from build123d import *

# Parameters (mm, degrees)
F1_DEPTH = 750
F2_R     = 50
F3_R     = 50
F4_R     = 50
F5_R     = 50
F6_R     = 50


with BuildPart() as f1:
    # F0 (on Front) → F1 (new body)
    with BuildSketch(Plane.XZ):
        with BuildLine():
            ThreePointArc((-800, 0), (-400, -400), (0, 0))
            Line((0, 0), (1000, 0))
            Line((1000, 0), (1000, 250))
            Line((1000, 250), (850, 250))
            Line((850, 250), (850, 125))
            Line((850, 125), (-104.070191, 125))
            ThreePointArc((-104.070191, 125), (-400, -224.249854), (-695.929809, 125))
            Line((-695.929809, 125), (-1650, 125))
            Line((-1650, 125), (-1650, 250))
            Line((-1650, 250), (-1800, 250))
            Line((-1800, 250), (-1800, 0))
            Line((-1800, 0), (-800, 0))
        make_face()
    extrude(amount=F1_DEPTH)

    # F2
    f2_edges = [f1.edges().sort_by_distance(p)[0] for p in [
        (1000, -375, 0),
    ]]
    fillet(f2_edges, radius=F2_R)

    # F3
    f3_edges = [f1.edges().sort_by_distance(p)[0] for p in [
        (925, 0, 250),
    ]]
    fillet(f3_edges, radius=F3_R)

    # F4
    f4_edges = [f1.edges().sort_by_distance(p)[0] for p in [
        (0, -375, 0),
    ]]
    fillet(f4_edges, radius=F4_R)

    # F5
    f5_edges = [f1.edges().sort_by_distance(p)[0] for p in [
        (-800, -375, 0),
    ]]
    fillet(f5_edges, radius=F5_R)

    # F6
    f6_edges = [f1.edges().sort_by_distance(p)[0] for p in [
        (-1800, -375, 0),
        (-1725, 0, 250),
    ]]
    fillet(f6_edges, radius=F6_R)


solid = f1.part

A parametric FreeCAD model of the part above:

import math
import FreeCAD as App
import Part
import Sketcher
Q = App.Units.Quantity


def edges_at(feature, points):
    """Names of the edges that pass closest to the given points."""
    edges = feature.Shape.Edges
    near = lambda p: min(range(len(edges)), key=lambda i: edges[i].distToShape(Part.Vertex(*p))[0])
    return sorted({f"Edge{near(p) + 1}" for p in points})

doc = App.newDocument("Part")
params = doc.addObject("Spreadsheet::Sheet", "Params")
for row, (alias, value) in enumerate([
    ("sketch1_radius", "400 mm"),
    ("sketch1_radius2", "300 mm"),
    ("sketch1_width", "1000 mm"),
    ("sketch1_width2", "150 mm"),
    ("sketch1_height", "250 mm"),
    ("pad1_length", "750 mm"),
    ("fillet_radius", "50 mm"),
    ("fillet2_radius", "50 mm"),
    ("fillet3_radius", "50 mm"),
    ("fillet4_radius", "50 mm"),
    ("fillet5_radius", "50 mm"),
], start=1):
    params.set(f"A{row}", alias)
    params.set(f"B{row}", "=" + value)
    params.setAlias(f"B{row}", alias)

body = doc.addObject("PartDesign::Body", "Body")

sketch1 = doc.addObject("Sketcher::SketchObject", "Sketch")
body.addObject(sketch1)
sketch1.AttachmentSupport = (doc.XZ_Plane, [""])
sketch1.MapMode = "FlatFace"
sketch1.addGeometry([
    Part.ArcOfCircle(Part.Circle(App.Vector(-400, 0, 0), App.Vector(0, 0, 1), 400), math.radians(180), math.radians(360)),
    Part.LineSegment(App.Vector(0, 0, 0), App.Vector(1000, 0, 0)),
    Part.LineSegment(App.Vector(1000, 0, 0), App.Vector(1000, 250, 0)),
    Part.LineSegment(App.Vector(1000, 250, 0), App.Vector(850, 250, 0)),
    Part.LineSegment(App.Vector(850, 250, 0), App.Vector(850, 125, 0)),
    Part.LineSegment(App.Vector(850, 125, 0), App.Vector(-104, 125, 0)),
    Part.ArcOfCircle(Part.Circle(App.Vector(-400, 76, 0), App.Vector(0, 0, 1), 300), math.radians(171), math.radians(369)),
    Part.LineSegment(App.Vector(-696, 125, 0), App.Vector(-1650, 125, 0)),
    Part.LineSegment(App.Vector(-1650, 125, 0), App.Vector(-1650, 250, 0)),
    Part.LineSegment(App.Vector(-1650, 250, 0), App.Vector(-1800, 250, 0)),
    Part.LineSegment(App.Vector(-1800, 250, 0), App.Vector(-1800, 0, 0)),
    Part.LineSegment(App.Vector(-1800, 0, 0), App.Vector(-800, 0, 0)),
], False)
sketch1.addConstraint([
    Sketcher.Constraint("Coincident", 0, 2, 1, 1),
    Sketcher.Constraint("Coincident", 1, 2, 2, 1),
    Sketcher.Constraint("Coincident", 2, 2, 3, 1),
    Sketcher.Constraint("Coincident", 3, 2, 4, 1),
    Sketcher.Constraint("Coincident", 4, 2, 5, 1),
    Sketcher.Constraint("Coincident", 5, 2, 6, 2),
    Sketcher.Constraint("Coincident", 6, 1, 7, 1),
    Sketcher.Constraint("Coincident", 7, 2, 8, 1),
    Sketcher.Constraint("Coincident", 8, 2, 9, 1),
    Sketcher.Constraint("Coincident", 9, 2, 10, 1),
    Sketcher.Constraint("Coincident", 10, 2, 11, 1),
    Sketcher.Constraint("Coincident", 11, 2, 0, 1),
    Sketcher.Constraint("Horizontal", 1),
    Sketcher.Constraint("Vertical", 2),
    Sketcher.Constraint("Horizontal", 3),
    Sketcher.Constraint("Vertical", 4),
    Sketcher.Constraint("Horizontal", 5),
    Sketcher.Constraint("Horizontal", 7),
    Sketcher.Constraint("Vertical", 8),
    Sketcher.Constraint("Horizontal", 9),
    Sketcher.Constraint("Vertical", 10),
    Sketcher.Constraint("Horizontal", 11),
    Sketcher.Constraint("PointOnObject", 0, 3, -1),
    Sketcher.Constraint("PointOnObject", 1, 2, -1),
    Sketcher.Constraint("PointOnObject", 10, 2, -1),
    Sketcher.Constraint("Horizontal", 5, 2, 6, 1),
    Sketcher.Constraint("Horizontal", 3, 2, 8, 2),
    Sketcher.Constraint("Vertical", 0, 3, 6, 3),
    Sketcher.Constraint("Equal", 5, 7),
    Sketcher.Constraint("Equal", 3, 9),
    Sketcher.Constraint("Radius", 0, Q("400 mm")),
    Sketcher.Constraint("Radius", 6, Q("300 mm")),
    Sketcher.Constraint("DistanceX", 1, 1, 1, 2, Q("1000 mm")),
    Sketcher.Constraint("DistanceX", 3, 2, 3, 1, Q("150 mm")),
    Sketcher.Constraint("DistanceY", 2, 1, 2, 2, Q("250 mm")),
    Sketcher.Constraint("DistanceY", 4, 2, 4, 1, Q("125 mm")),
    Sketcher.Constraint("DistanceX", 0, 3, -1, 1, Q("400 mm")),
    Sketcher.Constraint("DistanceX", 5, 2, 5, 1, Q("954.070191 mm")),
])
sketch1.setExpression("Constraints[30]", "Params.sketch1_radius")
sketch1.setExpression("Constraints[31]", "Params.sketch1_radius2")
sketch1.setExpression("Constraints[32]", "Params.sketch1_width")
sketch1.setExpression("Constraints[33]", "Params.sketch1_width2")
sketch1.setExpression("Constraints[34]", "Params.sketch1_height")
pad1 = doc.addObject("PartDesign::Pad", "Pad")
body.addObject(pad1)
pad1.Profile = sketch1
pad1.setExpression("Length", "Params.pad1_length")
doc.recompute()

fillet = doc.addObject("PartDesign::Fillet", "Fillet")
body.addObject(fillet)
fillet.Base = (pad1, edges_at(pad1, [(1000, -375, 0)]))
fillet.setExpression("Radius", "Params.fillet_radius")
doc.recompute()

fillet2 = doc.addObject("PartDesign::Fillet", "Fillet001")
body.addObject(fillet2)
fillet2.Base = (fillet, edges_at(fillet, [(925, 0, 250)]))
fillet2.setExpression("Radius", "Params.fillet2_radius")
doc.recompute()

fillet3 = doc.addObject("PartDesign::Fillet", "Fillet002")
body.addObject(fillet3)
fillet3.Base = (fillet2, edges_at(fillet2, [(0, -375, 0)]))
fillet3.setExpression("Radius", "Params.fillet3_radius")
doc.recompute()

fillet4 = doc.addObject("PartDesign::Fillet", "Fillet003")
body.addObject(fillet4)
fillet4.Base = (fillet3, edges_at(fillet3, [(-800, -375, 0)]))
fillet4.setExpression("Radius", "Params.fillet4_radius")
doc.recompute()

fillet5 = doc.addObject("PartDesign::Fillet", "Fillet004")
body.addObject(fillet5)
fillet5.Base = (fillet4, edges_at(fillet4, [(-1800, -375, 0), (-1725, 0, 250)]))
fillet5.setExpression("Radius", "Params.fillet5_radius")

doc.recompute()
